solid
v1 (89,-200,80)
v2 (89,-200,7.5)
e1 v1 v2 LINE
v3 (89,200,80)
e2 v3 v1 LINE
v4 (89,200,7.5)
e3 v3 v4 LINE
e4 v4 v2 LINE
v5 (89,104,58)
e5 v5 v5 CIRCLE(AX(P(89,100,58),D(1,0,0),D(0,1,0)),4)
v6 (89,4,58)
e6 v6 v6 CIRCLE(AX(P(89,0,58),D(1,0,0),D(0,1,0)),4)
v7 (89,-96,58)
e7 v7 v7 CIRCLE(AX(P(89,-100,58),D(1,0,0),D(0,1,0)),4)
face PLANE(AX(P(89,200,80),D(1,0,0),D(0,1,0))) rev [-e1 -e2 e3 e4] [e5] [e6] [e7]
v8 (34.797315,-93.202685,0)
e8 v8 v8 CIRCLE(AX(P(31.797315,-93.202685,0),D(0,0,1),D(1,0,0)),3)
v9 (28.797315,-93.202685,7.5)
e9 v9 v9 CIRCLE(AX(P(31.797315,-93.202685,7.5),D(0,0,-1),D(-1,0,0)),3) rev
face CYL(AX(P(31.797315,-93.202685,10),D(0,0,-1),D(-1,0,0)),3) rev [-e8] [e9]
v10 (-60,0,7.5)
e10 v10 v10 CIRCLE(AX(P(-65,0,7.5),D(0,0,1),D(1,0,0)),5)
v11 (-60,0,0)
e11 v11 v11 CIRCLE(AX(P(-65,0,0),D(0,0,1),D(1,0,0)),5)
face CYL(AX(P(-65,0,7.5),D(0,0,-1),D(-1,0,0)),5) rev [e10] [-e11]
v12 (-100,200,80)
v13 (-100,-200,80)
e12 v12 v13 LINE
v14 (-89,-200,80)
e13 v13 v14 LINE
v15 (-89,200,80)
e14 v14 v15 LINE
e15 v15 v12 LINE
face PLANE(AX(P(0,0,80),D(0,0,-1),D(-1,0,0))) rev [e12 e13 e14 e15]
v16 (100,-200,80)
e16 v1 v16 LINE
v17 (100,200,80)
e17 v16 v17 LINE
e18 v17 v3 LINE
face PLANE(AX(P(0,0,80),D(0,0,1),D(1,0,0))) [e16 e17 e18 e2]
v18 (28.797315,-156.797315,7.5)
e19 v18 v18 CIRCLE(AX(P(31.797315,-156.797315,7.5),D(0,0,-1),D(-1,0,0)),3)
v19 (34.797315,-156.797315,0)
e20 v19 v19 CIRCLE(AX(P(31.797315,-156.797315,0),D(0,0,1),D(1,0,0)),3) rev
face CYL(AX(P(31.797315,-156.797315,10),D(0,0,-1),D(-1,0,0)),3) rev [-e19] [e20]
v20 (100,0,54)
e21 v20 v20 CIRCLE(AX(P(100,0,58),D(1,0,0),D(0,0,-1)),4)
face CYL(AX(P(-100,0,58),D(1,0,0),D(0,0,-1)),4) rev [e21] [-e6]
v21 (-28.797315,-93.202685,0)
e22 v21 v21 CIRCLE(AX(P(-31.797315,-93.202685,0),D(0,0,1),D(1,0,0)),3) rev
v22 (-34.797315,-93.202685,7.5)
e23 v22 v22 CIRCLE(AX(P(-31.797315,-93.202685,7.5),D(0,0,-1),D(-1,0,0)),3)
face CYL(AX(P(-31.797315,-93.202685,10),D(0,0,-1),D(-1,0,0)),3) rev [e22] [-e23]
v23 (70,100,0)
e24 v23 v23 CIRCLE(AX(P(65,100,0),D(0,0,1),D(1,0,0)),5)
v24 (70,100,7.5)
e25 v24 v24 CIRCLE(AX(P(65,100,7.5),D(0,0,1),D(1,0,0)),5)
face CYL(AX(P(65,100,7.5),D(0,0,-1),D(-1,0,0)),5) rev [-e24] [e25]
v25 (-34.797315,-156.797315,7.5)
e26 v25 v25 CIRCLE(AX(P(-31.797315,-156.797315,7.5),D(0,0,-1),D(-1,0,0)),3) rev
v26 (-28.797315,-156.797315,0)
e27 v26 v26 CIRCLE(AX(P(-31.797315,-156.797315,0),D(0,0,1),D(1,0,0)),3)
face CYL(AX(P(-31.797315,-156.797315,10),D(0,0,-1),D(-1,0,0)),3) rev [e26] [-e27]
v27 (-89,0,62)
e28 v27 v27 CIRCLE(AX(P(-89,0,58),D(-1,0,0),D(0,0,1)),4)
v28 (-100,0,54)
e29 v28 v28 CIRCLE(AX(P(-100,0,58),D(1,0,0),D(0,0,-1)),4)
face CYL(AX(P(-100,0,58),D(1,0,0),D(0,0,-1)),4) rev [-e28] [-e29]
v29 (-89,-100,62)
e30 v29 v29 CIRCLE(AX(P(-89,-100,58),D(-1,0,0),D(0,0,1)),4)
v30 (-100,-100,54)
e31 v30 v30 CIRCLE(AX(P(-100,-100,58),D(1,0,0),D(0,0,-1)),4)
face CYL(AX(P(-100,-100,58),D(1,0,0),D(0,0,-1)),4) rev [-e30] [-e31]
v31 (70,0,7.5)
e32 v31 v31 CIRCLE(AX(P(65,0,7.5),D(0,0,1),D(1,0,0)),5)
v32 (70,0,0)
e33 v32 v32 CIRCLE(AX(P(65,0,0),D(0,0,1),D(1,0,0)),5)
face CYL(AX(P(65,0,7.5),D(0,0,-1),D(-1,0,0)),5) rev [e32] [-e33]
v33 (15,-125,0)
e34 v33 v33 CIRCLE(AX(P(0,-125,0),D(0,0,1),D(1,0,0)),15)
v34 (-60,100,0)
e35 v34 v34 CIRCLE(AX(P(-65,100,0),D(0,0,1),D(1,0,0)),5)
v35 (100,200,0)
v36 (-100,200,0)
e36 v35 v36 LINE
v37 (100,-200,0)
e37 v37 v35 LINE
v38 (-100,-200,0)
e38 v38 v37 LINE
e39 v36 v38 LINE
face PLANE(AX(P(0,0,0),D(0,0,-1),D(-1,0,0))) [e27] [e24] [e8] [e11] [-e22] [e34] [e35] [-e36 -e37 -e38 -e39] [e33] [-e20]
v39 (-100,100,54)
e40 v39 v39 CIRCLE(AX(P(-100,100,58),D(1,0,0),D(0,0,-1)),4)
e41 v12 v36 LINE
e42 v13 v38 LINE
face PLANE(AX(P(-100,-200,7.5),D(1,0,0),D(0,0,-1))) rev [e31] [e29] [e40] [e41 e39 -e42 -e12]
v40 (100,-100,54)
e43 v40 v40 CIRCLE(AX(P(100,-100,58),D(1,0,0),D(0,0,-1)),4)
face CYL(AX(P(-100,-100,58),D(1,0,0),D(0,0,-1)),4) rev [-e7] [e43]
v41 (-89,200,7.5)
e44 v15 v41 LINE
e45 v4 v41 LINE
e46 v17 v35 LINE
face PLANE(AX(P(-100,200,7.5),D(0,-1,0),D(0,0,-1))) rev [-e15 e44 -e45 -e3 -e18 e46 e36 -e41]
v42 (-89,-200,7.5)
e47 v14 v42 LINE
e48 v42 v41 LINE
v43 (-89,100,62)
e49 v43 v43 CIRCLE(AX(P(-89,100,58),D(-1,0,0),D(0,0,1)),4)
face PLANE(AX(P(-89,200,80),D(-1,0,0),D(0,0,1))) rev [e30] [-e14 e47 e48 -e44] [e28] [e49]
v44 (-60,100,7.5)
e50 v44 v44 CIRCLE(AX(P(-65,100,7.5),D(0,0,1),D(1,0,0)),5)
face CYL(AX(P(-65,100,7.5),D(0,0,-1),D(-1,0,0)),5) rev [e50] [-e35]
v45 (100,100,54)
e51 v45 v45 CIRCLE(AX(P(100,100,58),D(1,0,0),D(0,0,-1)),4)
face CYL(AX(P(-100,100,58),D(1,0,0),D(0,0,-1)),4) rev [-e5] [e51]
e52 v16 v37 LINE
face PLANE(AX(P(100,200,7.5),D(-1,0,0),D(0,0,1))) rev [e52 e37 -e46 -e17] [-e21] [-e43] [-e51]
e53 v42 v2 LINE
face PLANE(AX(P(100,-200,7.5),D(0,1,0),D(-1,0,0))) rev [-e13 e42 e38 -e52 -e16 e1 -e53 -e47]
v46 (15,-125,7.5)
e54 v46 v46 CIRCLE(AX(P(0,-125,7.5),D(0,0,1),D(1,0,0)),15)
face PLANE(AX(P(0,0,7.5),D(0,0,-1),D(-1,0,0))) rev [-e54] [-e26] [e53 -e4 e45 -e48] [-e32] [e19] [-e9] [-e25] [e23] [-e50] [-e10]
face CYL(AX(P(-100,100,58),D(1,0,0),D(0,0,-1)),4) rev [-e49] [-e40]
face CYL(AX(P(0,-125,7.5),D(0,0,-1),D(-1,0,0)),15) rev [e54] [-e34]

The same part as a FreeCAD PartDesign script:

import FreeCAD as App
import Part
import Sketcher


def add_polygon(sketch, points):
    """Adds a closed chain of lines whose ends are joined by coincident constraints."""
    first, n = sketch.GeometryCount, len(points)
    for a, b in zip(points, points[1:] + points[:1]):
        sketch.addGeometry(Part.LineSegment(App.Vector(*a, 0), App.Vector(*b, 0)), False)
    for i in range(n):
        sketch.addConstraint(Sketcher.Constraint("Coincident", first + i, 2, first + (i + 1) % n, 1))

doc = App.newDocument("Part")
body = doc.addObject("PartDesign::Body", "Body")

# Sketch on XY plane
sketch1 = body.newObject("Sketcher::SketchObject", "Sketch")
sketch1.AttachmentSupport = (doc.getObject("XY_Plane"), [""])
sketch1.MapMode = "FlatFace"
add_polygon(sketch1, [(-100, 200), (-100, -200), (100, -200), (100, 200)])  # lines 0-3
sketch1.addGeometry(Part.Circle(App.Vector(0, -125, 0), App.Vector(0, 0, 1), 15), False)  # 4
sketch1.addGeometry(Part.Circle(App.Vector(-65, 0, 0), App.Vector(0, 0, 1), 5), False)  # 5
sketch1.addGeometry(Part.Circle(App.Vector(-65, 100, 0), App.Vector(0, 0, 1), 5), False)  # 6
sketch1.addGeometry(Part.Circle(App.Vector(65, 0, 0), App.Vector(0, 0, 1), 5), False)  # 7
sketch1.addGeometry(Part.Circle(App.Vector(65, 100, 0), App.Vector(0, 0, 1), 5), False)  # 8
sketch1.addConstraint(Sketcher.Constraint("Vertical", 0))
sketch1.addConstraint(Sketcher.Constraint("Horizontal", 1))
sketch1.addConstraint(Sketcher.Constraint("Vertical", 2))
sketch1.addConstraint(Sketcher.Constraint("Horizontal", 3))
sketch1.addConstraint(Sketcher.Constraint("Equal", 5, 6))
sketch1.addConstraint(Sketcher.Constraint("Equal", 6, 7))
sketch1.addConstraint(Sketcher.Constraint("Equal", 7, 8))
sketch1.addConstraint(Sketcher.Constraint("Symmetric", 5, 3, 7, 3, -1, 1))
sketch1.addConstraint(Sketcher.Constraint("Symmetric", 0, 2, 2, 2, -1, 1))
sketch1.addConstraint(Sketcher.Constraint("Symmetric", 6, 3, 8, 3, -2))
sketch1.addConstraint(Sketcher.Constraint("PointOnObject", 4, 3, -2))
sketch1.addConstraint(Sketcher.Constraint("PointOnObject", 5, 3, -1))
sketch1.addConstraint(Sketcher.Constraint("Vertical", 5, 3, 6, 3))
sketch1.addConstraint(Sketcher.Constraint("Diameter", 4, 30.0))
sketch1.addConstraint(Sketcher.Constraint("Diameter", 5, 10.0))
sketch1.addConstraint(Sketcher.Constraint("DistanceX", 1, 1, 1, 2, 200.0))
sketch1.addConstraint(Sketcher.Constraint("DistanceY", 0, 2, 0, 1, 400.0))
sketch1.addConstraint(Sketcher.Constraint("DistanceY", 4, 3, -1, 1, 125.0))
sketch1.addConstraint(Sketcher.Constraint("DistanceX", 5, 3, -1, 1, 65.0))
sketch1.addConstraint(Sketcher.Constraint("DistanceY", -1, 1, 6, 3, 100.0))
pad1 = body.newObject("PartDesign::Pad", "Pad")
pad1.Profile = sketch1
pad1.Length = 7.5

# Sketch on XY plane
sketch2 = body.newObject("Sketcher::SketchObject", "Sketch001")
sketch2.AttachmentSupport = (doc.getObject("XY_Plane"), [""])
sketch2.MapMode = "FlatFace"
sketch2.AttachmentOffset = App.Placement(App.Vector(0, 0, 7.5), App.Rotation())
add_polygon(sketch2, [(-100, 200), (-100, -200), (-89, -200), (-89, 200)])  # lines 0-3
add_polygon(sketch2, [(89, 200), (89, -200), (100, -200), (100, 200)])  # lines 4-7
sketch2.addConstraint(Sketcher.Constraint("Vertical", 0))
sketch2.addConstraint(Sketcher.Constraint("Horizontal", 1))
sketch2.addConstraint(Sketcher.Constraint("Vertical", 2))
sketch2.addConstraint(Sketcher.Constraint("Horizontal", 3))
sketch2.addConstraint(Sketcher.Constraint("Vertical", 4))
sketch2.addConstraint(Sketcher.Constraint("Horizontal", 5))
sketch2.addConstraint(Sketcher.Constraint("Vertical", 6))
sketch2.addConstraint(Sketcher.Constraint("Horizontal", 7))
sketch2.addConstraint(Sketcher.Constraint("Symmetric", 2, 2, 4, 2, -1, 1))
sketch2.addConstraint(Sketcher.Constraint("Symmetric", 0, 2, 6, 2, -1, 1))
sketch2.addConstraint(Sketcher.Constraint("Horizontal", 1, 2, 4, 2))
sketch2.addConstraint(Sketcher.Constraint("DistanceX", 1, 1, 1, 2, 11.0))
sketch2.addConstraint(Sketcher.Constraint("DistanceY", 0, 2, 0, 1, 400.0))
sketch2.addConstraint(Sketcher.Constraint("DistanceX", 0, 2, -1, 1, 100.0))
pad2 = body.newObject("PartDesign::Pad", "Pad001")
pad2.Profile = sketch2
pad2.Length = 72.5

# Sketch on YZ plane
sketch3 = body.newObject("Sketcher::SketchObject", "Sketch002")
sketch3.AttachmentSupport = (doc.getObject("YZ_Plane"), [""])
sketch3.MapMode = "FlatFace"
sketch3.AttachmentOffset = App.Placement(App.Vector(0, 0, 100), App.Rotation())
sketch3.addGeometry(Part.Circle(App.Vector(100, 58, 0), App.Vector(0, 0, 1), 4), False)
sketch3.addGeometry(Part.Circle(App.Vector(0, 58, 0), App.Vector(0, 0, 1), 4), False)
sketch3.addGeometry(Part.Circle(App.Vector(-100, 58, 0), App.Vector(0, 0, 1), 4), False)
sketch3.addConstraint(Sketcher.Constraint("Equal", 0, 1))
sketch3.addConstraint(Sketcher.Constraint("Equal", 1, 2))
sketch3.addConstraint(Sketcher.Constraint("Symmetric", 0, 3, 2, 3, -2))
sketch3.addConstraint(Sketcher.Constraint("PointOnObject", 1, 3, -2))
sketch3.addConstraint(Sketcher.Constraint("Horizontal", 0, 3, 1, 3))
sketch3.addConstraint(Sketcher.Constraint("Diameter", 0, 8.0))
sketch3.addConstraint(Sketcher.Constraint("DistanceX", -1, 1, 0, 3, 100.0))
sketch3.addConstraint(Sketcher.Constraint("DistanceY", -1, 1, 0, 3, 58.0))
pocket1 = body.newObject("PartDesign::Pocket", "Pocket")
pocket1.Profile = sketch3
pocket1.Length = 200

# Sketch on XY plane
sketch4 = body.newObject("Sketcher::SketchObject", "Sketch003")
sketch4.AttachmentSupport = (doc.getObject("XY_Plane"), [""])
sketch4.MapMode = "FlatFace"
sketch4.addGeometry(Part.Circle(App.Vector(31.8, -93.2, 0), App.Vector(0, 0, 1), 3), False)
sketch4.addGeometry(Part.Circle(App.Vector(-31.8, -93.2, 0), App.Vector(0, 0, 1), 3), False)
sketch4.addGeometry(Part.Circle(App.Vector(-31.8, -156.8, 0), App.Vector(0, 0, 1), 3), False)
sketch4.addGeometry(Part.Circle(App.Vector(31.8, -156.8, 0), App.Vector(0, 0, 1), 3), False)
sketch4.addConstraint(Sketcher.Constraint("Equal", 0, 1))
sketch4.addConstraint(Sketcher.Constraint("Equal", 1, 2))
sketch4.addConstraint(Sketcher.Constraint("Equal", 2, 3))
sketch4.addConstraint(Sketcher.Constraint("Symmetric", 0, 3, 1, 3, -2))
sketch4.addConstraint(Sketcher.Constraint("Symmetric", 2, 3, 3, 3, -2))
sketch4.addConstraint(Sketcher.Constraint("Vertical", 1, 3, 2, 3))
sketch4.addConstraint(Sketcher.Constraint("Diameter", 0, 6.0))
sketch4.addConstraint(Sketcher.Constraint("DistanceX", 1, 3, 0, 3, 63.59463))
sketch4.addConstraint(Sketcher.Constraint("DistanceY", 2, 3, 1, 3, 63.59463))
sketch4.addConstraint(Sketcher.Constraint("DistanceY", 0, 3, -1, 1, 93.202685))
pocket2 = body.newObject("PartDesign::Pocket", "Pocket001")
pocket2.Profile = sketch4
pocket2.Length = 10
pocket2.Reversed = True

doc.recompute()
